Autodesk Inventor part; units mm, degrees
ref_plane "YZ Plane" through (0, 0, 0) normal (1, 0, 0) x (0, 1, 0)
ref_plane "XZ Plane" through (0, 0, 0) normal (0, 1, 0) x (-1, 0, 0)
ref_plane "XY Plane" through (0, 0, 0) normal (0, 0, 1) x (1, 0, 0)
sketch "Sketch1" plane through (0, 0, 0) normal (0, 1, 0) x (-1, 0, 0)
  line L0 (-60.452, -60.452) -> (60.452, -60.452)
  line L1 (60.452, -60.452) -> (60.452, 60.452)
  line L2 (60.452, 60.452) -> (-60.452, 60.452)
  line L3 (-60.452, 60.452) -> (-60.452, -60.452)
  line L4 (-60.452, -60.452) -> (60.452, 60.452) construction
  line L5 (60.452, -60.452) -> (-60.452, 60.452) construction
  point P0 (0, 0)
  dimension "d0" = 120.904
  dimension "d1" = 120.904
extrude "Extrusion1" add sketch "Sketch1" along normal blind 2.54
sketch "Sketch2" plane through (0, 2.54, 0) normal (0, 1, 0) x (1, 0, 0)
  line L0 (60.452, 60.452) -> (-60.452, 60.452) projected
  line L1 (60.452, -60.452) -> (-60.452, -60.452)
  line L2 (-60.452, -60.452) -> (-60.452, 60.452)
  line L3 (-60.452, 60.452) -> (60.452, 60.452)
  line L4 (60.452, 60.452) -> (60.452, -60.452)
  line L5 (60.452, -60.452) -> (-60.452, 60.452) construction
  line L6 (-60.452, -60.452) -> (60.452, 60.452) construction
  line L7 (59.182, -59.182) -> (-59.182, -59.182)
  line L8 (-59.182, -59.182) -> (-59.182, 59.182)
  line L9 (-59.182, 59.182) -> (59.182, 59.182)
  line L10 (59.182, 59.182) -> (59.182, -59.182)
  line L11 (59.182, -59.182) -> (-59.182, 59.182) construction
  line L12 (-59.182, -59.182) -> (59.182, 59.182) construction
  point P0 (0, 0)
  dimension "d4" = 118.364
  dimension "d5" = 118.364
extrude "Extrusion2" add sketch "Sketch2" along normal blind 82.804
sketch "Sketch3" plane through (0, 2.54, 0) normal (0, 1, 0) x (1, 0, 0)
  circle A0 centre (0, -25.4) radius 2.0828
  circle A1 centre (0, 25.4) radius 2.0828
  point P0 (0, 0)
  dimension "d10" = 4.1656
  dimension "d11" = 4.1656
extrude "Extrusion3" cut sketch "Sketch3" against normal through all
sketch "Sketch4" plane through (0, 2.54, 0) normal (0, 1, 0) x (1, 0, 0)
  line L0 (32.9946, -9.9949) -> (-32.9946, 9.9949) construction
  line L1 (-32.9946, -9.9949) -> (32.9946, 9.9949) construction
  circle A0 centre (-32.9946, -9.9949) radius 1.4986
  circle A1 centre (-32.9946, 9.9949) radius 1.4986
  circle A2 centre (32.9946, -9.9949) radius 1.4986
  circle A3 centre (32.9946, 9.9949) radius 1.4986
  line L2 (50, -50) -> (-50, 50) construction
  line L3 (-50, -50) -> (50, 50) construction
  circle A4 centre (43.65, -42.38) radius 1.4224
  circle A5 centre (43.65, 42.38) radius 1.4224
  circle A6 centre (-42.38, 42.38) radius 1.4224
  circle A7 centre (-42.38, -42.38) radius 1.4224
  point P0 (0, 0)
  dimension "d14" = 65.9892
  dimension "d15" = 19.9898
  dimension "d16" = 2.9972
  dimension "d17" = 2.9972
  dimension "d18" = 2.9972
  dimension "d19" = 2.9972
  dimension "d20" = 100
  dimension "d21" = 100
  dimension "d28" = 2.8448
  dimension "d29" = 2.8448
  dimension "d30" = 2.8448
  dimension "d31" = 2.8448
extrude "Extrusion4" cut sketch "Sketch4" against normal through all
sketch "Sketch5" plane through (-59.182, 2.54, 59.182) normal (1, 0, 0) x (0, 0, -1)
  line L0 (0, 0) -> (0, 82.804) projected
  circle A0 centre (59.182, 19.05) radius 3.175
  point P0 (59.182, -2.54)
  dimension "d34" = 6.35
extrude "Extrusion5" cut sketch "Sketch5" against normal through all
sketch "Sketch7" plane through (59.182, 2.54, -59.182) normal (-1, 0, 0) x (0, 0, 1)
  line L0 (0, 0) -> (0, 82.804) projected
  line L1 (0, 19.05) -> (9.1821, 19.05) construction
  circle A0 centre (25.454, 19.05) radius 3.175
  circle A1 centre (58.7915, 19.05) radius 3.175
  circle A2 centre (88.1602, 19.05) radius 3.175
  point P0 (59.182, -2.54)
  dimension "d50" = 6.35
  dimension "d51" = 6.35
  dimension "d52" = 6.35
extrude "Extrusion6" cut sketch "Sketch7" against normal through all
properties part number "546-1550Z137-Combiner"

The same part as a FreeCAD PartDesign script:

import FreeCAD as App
import Part
import Sketcher
Q = App.Units.Quantity


def add_polygon(sketch, points):
    """Adds a closed chain of lines whose ends are joined by coincident constraints."""
    first, n = sketch.GeometryCount, len(points)
    for a, b in zip(points, points[1:] + points[:1]):
        sketch.addGeometry(Part.LineSegment(App.Vector(*a, 0), App.Vector(*b, 0)), False)
    for i in range(n):
        sketch.addConstraint(Sketcher.Constraint("Coincident", first + i, 2, first + (i + 1) % n, 1))

doc = App.newDocument("Part")
body = doc.addObject("PartDesign::Body", "Body")

# Sketch on XZ plane
sketch1 = body.newObject("Sketcher::SketchObject", "Sketch")
sketch1.AttachmentSupport = (doc.getObject("XZ_Plane"), [""])
sketch1.MapMode = "FlatFace"
add_polygon(sketch1, [(60, 60), (60, -60), (-60, -60), (-60, 60)])  # lines 0-3
sketch1.addConstraint([
    Sketcher.Constraint("Vertical", 0),
    Sketcher.Constraint("Horizontal", 1),
    Sketcher.Constraint("Vertical", 2),
    Sketcher.Constraint("Horizontal", 3),
    Sketcher.Constraint("Symmetric", 0, 2, 2, 2, -1, 1),
    Sketcher.Constraint("Equal", 3, 0),
    Sketcher.Constraint("DistanceX", 1, 2, 1, 1, Q("4.76 in")),
])
pad1 = body.newObject("PartDesign::Pad", "Pad")
pad1.Profile = sketch1
pad1.Length = Q("0.1 in")
pad1.Reversed = True

# Sketch on XZ plane
sketch2 = body.newObject("Sketcher::SketchObject", "Sketch001")
sketch2.AttachmentSupport = (doc.getObject("XZ_Plane"), [""])
sketch2.MapMode = "FlatFace"
sketch2.AttachmentOffset = App.Placement(App.Vector(0, 0, -0.1 * 25.4), App.Rotation())
add_polygon(sketch2, [(60, 60), (60, -60), (-60, -60), (-60, 60)])  # lines 0-3
add_polygon(sketch2, [(59, -59), (59, 59), (-59, 59), (-59, -59)])  # lines 4-7
sketch2.addConstraint([
    Sketcher.Constraint("Vertical", 0),
    Sketcher.Constraint("Horizontal", 1),
    Sketcher.Constraint("Vertical", 2),
    Sketcher.Constraint("Horizontal", 3),
    Sketcher.Constraint("Vertical", 4),
    Sketcher.Constraint("Horizontal", 5),
    Sketcher.Constraint("Vertical", 6),
    Sketcher.Constraint("Horizontal", 7),
    Sketcher.Constraint("Symmetric", 0, 2, 2, 2, -1, 1),
    Sketcher.Constraint("Symmetric", 4, 2, 6, 2, -1, 1),
    Sketcher.Constraint("Equal", 3, 0),
    Sketcher.Constraint("Equal", 7, 4),
    Sketcher.Constraint("DistanceX", 5, 2, 5, 1, Q("4.66 in")),
    Sketcher.Constraint("DistanceX", 1, 2, 1, 1, Q("4.76 in")),
])
pad2 = body.newObject("PartDesign::Pad", "Pad001")
pad2.Profile = sketch2
pad2.Length = Q("3.26 in")
pad2.Reversed = True

# Sketch on XZ plane
sketch3 = body.newObject("Sketcher::SketchObject", "Sketch002")
sketch3.AttachmentSupport = (doc.getObject("XZ_Plane"), [""])
sketch3.MapMode = "FlatFace"
sketch3.AttachmentOffset = App.Placement(App.Vector(0, 0, -0.1 * 25.4), App.Rotation())
sketch3.addGeometry([
    Part.Circle(App.Vector(0, 25.4, 0), App.Vector(0, 0, 1), 2.1),
    Part.Circle(App.Vector(0, -25.4, 0), App.Vector(0, 0, 1), 2.1),
], False)
sketch3.addConstraint([
    Sketcher.Constraint("Equal", 0, 1),
    Sketcher.Constraint("Symmetric", 0, 3, 1, 3, -1, 1),
    Sketcher.Constraint("PointOnObject", 0, 3, -2),
    Sketcher.Constraint("Diameter", 0, Q("0.164 in")),
    Sketcher.Constraint("DistanceY", -1, 1, 0, 3, Q("1 in")),
])
pocket1 = body.newObject("PartDesign::Pocket", "Pocket")
pocket1.Profile = sketch3
pocket1.Type = "ThroughAll"
pocket1.Reversed = True

# Sketch on XZ plane
sketch4 = body.newObject("Sketcher::SketchObject", "Sketch003")
sketch4.AttachmentSupport = (doc.getObject("XZ_Plane"), [""])
sketch4.MapMode = "FlatFace"
sketch4.AttachmentOffset = App.Placement(App.Vector(0, 0, -0.1 * 25.4), App.Rotation())
sketch4.addGeometry([
    Part.Circle(App.Vector(-33, 10, 0), App.Vector(0, 0, 1), 1.5),  # 0
    Part.Circle(App.Vector(-33, -10, 0), App.Vector(0, 0, 1), 1.5),  # 1
    Part.Circle(App.Vector(33, 10, 0), App.Vector(0, 0, 1), 1.5),  # 2
    Part.Circle(App.Vector(33, -10, 0), App.Vector(0, 0, 1), 1.5),  # 3
    Part.Circle(App.Vector(43.6, 42.4, 0), App.Vector(0, 0, 1), 1.4),  # 4
    Part.Circle(App.Vector(43.6, -42.4, 0), App.Vector(0, 0, 1), 1.4),  # 5
    Part.Circle(App.Vector(-42.4, -42.4, 0), App.Vector(0, 0, 1), 1.4),  # 6
    Part.Circle(App.Vector(-42.4, 42.4, 0), App.Vector(0, 0, 1), 1.4),  # 7
], False)
sketch4.addConstraint([
    Sketcher.Constraint("Equal", 0, 1),
    Sketcher.Constraint("Equal", 1, 2),
    Sketcher.Constraint("Equal", 2, 3),
    Sketcher.Constraint("Equal", 4, 5),
    Sketcher.Constraint("Equal", 5, 6),
    Sketcher.Constraint("Equal", 6, 7),
    Sketcher.Constraint("Symmetric", 1, 3, 2, 3, -1, 1),
    Sketcher.Constraint("Symmetric", 0, 3, 3, 3, -1, 1),
    Sketcher.Constraint("Symmetric", 0, 3, 2, 3, -2),
    Sketcher.Constraint("Symmetric", 4, 3, 5, 3, -1),
    Sketcher.Constraint("Symmetric", 6, 3, 7, 3, -1),
    Sketcher.Constraint("Horizontal", 5, 3, 6, 3),
    Sketcher.Constraint("Diameter", 0, Q("0.118 in")),
    Sketcher.Constraint("Diameter", 4, Q("0.112 in")),
    Sketcher.Constraint("DistanceY", 1, 3, 0, 3, Q("0.787 in")),
    Sketcher.Constraint("DistanceX", 0, 3, 2, 3, Q("2.598 in")),
    Sketcher.Constraint("DistanceY", 2, 3, 4, 3, Q("1.275 in")),
    Sketcher.Constraint("DistanceX", 6, 3, 5, 3, Q("3.387 in")),
    Sketcher.Constraint("DistanceX", -1, 1, 4, 3, Q("1.7185 in")),
])
pocket2 = body.newObject("PartDesign::Pocket", "Pocket001")
pocket2.Profile = sketch4
pocket2.Type = "ThroughAll"
pocket2.Reversed = True

# Sketch on YZ plane
sketch5 = body.newObject("Sketcher::SketchObject", "Sketch004")
sketch5.AttachmentSupport = (doc.getObject("YZ_Plane"), [""])
sketch5.MapMode = "FlatFace"
sketch5.AttachmentOffset = App.Placement(App.Vector(0, 0, -2.33 * 25.4), App.Rotation())
sketch5.addGeometry(Part.Circle(App.Vector(21.6, 0, 0), App.Vector(0, 0, 1), 3.2), False)
sketch5.addConstraint([
    Sketcher.Constraint("PointOnObject", 0, 3, -1),
    Sketcher.Constraint("Diameter", 0, Q("0.25 in")),
    Sketcher.Constraint("DistanceX", -1, 1, 0, 3, Q("0.85 in")),
])
pocket3 = body.newObject("PartDesign::Pocket", "Pocket002")
pocket3.Profile = sketch5
pocket3.Type = "ThroughAll"

# Sketch on YZ plane
sketch6 = body.newObject("Sketcher::SketchObject", "Sketch005")
sketch6.AttachmentSupport = (doc.getObject("YZ_Plane"), [""])
sketch6.MapMode = "FlatFace"
sketch6.AttachmentOffset = App.Placement(App.Vector(0, 0, 2.33 * 25.4), App.Rotation())
sketch6.addGeometry([
    Part.Circle(App.Vector(21.6, -33.7, 0), App.Vector(0, 0, 1), 3.2),
    Part.Circle(App.Vector(21.6, -0.4, 0), App.Vector(0, 0, 1), 3.2),
    Part.Circle(App.Vector(21.6, 29, 0), App.Vector(0, 0, 1), 3.2),
], False)
sketch6.addConstraint([
    Sketcher.Constraint("Equal", 0, 1),
    Sketcher.Constraint("Equal", 1, 2),
    Sketcher.Constraint("Vertical", 0, 3, 1, 3),
    Sketcher.Constraint("Vertical", 1, 3, 2, 3),
    Sketcher.Constraint("Diameter", 0, Q("0.25 in")),
    Sketcher.Constraint("DistanceX", -1, 1, 0, 3, Q("0.85 in")),
    Sketcher.Constraint("DistanceY", 0, 3, 1, 3, Q("1.3125 in")),
    Sketcher.Constraint("DistanceY", 1, 3, 2, 3, Q("1.156248 in")),
    Sketcher.Constraint("DistanceY", 0, 3, -1, 1, 33.728),
])
pocket4 = body.newObject("PartDesign::Pocket", "Pocket003")
pocket4.Profile = sketch6
pocket4.Type = "ThroughAll"
pocket4.Reversed = True

doc.recompute()
